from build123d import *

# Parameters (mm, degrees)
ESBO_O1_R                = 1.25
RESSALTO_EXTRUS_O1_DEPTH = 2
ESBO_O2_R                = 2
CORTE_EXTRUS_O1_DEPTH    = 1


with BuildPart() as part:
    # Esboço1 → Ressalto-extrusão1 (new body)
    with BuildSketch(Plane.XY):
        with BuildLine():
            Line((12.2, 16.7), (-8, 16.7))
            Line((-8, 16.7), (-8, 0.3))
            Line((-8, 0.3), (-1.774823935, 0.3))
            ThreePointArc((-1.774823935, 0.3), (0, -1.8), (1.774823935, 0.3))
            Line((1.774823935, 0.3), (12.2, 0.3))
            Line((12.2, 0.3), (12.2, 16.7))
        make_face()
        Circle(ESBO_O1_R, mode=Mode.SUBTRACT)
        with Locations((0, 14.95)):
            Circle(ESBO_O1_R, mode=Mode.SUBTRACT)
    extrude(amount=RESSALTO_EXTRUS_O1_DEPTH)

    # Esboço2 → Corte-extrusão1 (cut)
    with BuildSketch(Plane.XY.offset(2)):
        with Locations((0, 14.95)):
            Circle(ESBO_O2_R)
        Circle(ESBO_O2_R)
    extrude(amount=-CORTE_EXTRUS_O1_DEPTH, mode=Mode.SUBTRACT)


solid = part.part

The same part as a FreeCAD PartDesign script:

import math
import FreeCAD as App
import Part
import Sketcher

V = App.Vector

doc = App.newDocument("Part")
body = doc.addObject("PartDesign::Body", "Body")

sketch1 = body.newObject("Sketcher::SketchObject", "Sketch")
sketch1.AttachmentSupport = (doc.getObject("XY_Plane"), [""])
sketch1.MapMode = "FlatFace"
sketch1.addGeometry(Part.LineSegment(V(12.2, 16.7, 0), V(-8, 16.7, 0)), False)
sketch1.addGeometry(Part.LineSegment(V(-8, 16.7, 0), V(-8, 0.3, 0)), False)
sketch1.addGeometry(Part.LineSegment(V(-8, 0.3, 0), V(-1.8, 0.3, 0)), False)
sketch1.addGeometry(Part.ArcOfCircle(Part.Circle(V(0, 0, 0), V(0, 0, 1), 1.8), math.radians(170), math.radians(370)), False)
sketch1.addGeometry(Part.LineSegment(V(1.8, 0.3, 0), V(12.2, 0.3, 0)), False)
sketch1.addGeometry(Part.LineSegment(V(12.2, 0.3, 0), V(12.2, 16.7, 0)), False)
sketch1.addGeometry(Part.Circle(V(0, 0, 0), V(0, 0, 1), 1.2), False)
sketch1.addGeometry(Part.Circle(V(0, 14.9, 0), V(0, 0, 1), 1.2), False)
sketch1.addConstraint(Sketcher.Constraint("Coincident", 0, 2, 1, 1))
sketch1.addConstraint(Sketcher.Constraint("Coincident", 1, 2, 2, 1))
sketch1.addConstraint(Sketcher.Constraint("Coincident", 2, 2, 3, 1))
sketch1.addConstraint(Sketcher.Constraint("Coincident", 3, 2, 4, 1))
sketch1.addConstraint(Sketcher.Constraint("Coincident", 4, 2, 5, 1))
sketch1.addConstraint(Sketcher.Constraint("Coincident", 5, 2, 0, 1))
sketch1.addConstraint(Sketcher.Constraint("Horizontal", 0))
sketch1.addConstraint(Sketcher.Constraint("Vertical", 1))
sketch1.addConstraint(Sketcher.Constraint("Horizontal", 2))
sketch1.addConstraint(Sketcher.Constraint("Horizontal", 4))
sketch1.addConstraint(Sketcher.Constraint("Vertical", 5))
sketch1.addConstraint(Sketcher.Constraint("Coincident", 3, 3, -1, 1))
sketch1.addConstraint(Sketcher.Constraint("Coincident", 6, 3, -1, 1))
sketch1.addConstraint(Sketcher.Constraint("Equal", 6, 7))
sketch1.addConstraint(Sketcher.Constraint("PointOnObject", 7, 3, -2))
sketch1.addConstraint(Sketcher.Constraint("Horizontal", 2, 2, 3, 2))
sketch1.addConstraint(Sketcher.Constraint("Diameter", 6, 2.5))
sketch1.addConstraint(Sketcher.Constraint("Radius", 3, 1.8))
sketch1.addConstraint(Sketcher.Constraint("DistanceX", 0, 2, 0, 1, 20.2))
sketch1.addConstraint(Sketcher.Constraint("DistanceY", 1, 2, 1, 1, 16.4))
sketch1.addConstraint(Sketcher.Constraint("DistanceX", 0, 2, -1, 1, 8.0))
sketch1.addConstraint(Sketcher.Constraint("DistanceY", -1, 1, 0, 2, 16.7))
sketch1.addConstraint(Sketcher.Constraint("DistanceY", -1, 1, 7, 3, 14.95))
pad1 = body.newObject("PartDesign::Pad", "Pad")
pad1.Profile = sketch1
pad1.Length = 2

sketch2 = body.newObject("Sketcher::SketchObject", "Sketch001")
sketch2.AttachmentSupport = (doc.getObject("XY_Plane"), [""])
sketch2.MapMode = "FlatFace"
sketch2.AttachmentOffset = App.Placement(V(0, 0, 2), App.Rotation())
sketch2.addGeometry(Part.Circle(V(0, 14.9, 0), V(0, 0, 1), 2), False)
sketch2.addGeometry(Part.Circle(V(0, 0, 0), V(0, 0, 1), 2), False)
sketch2.addConstraint(Sketcher.Constraint("Coincident", 1, 3, -1, 1))
sketch2.addConstraint(Sketcher.Constraint("Equal", 0, 1))
sketch2.addConstraint(Sketcher.Constraint("PointOnObject", 0, 3, -2))
sketch2.addConstraint(Sketcher.Constraint("Diameter", 0, 4.0))
sketch2.addConstraint(Sketcher.Constraint("DistanceY", -1, 1, 0, 3, 14.95))
pocket1 = body.newObject("PartDesign::Pocket", "Pocket")
pocket1.Profile = sketch2
pocket1.Length = 1

doc.recompute()
